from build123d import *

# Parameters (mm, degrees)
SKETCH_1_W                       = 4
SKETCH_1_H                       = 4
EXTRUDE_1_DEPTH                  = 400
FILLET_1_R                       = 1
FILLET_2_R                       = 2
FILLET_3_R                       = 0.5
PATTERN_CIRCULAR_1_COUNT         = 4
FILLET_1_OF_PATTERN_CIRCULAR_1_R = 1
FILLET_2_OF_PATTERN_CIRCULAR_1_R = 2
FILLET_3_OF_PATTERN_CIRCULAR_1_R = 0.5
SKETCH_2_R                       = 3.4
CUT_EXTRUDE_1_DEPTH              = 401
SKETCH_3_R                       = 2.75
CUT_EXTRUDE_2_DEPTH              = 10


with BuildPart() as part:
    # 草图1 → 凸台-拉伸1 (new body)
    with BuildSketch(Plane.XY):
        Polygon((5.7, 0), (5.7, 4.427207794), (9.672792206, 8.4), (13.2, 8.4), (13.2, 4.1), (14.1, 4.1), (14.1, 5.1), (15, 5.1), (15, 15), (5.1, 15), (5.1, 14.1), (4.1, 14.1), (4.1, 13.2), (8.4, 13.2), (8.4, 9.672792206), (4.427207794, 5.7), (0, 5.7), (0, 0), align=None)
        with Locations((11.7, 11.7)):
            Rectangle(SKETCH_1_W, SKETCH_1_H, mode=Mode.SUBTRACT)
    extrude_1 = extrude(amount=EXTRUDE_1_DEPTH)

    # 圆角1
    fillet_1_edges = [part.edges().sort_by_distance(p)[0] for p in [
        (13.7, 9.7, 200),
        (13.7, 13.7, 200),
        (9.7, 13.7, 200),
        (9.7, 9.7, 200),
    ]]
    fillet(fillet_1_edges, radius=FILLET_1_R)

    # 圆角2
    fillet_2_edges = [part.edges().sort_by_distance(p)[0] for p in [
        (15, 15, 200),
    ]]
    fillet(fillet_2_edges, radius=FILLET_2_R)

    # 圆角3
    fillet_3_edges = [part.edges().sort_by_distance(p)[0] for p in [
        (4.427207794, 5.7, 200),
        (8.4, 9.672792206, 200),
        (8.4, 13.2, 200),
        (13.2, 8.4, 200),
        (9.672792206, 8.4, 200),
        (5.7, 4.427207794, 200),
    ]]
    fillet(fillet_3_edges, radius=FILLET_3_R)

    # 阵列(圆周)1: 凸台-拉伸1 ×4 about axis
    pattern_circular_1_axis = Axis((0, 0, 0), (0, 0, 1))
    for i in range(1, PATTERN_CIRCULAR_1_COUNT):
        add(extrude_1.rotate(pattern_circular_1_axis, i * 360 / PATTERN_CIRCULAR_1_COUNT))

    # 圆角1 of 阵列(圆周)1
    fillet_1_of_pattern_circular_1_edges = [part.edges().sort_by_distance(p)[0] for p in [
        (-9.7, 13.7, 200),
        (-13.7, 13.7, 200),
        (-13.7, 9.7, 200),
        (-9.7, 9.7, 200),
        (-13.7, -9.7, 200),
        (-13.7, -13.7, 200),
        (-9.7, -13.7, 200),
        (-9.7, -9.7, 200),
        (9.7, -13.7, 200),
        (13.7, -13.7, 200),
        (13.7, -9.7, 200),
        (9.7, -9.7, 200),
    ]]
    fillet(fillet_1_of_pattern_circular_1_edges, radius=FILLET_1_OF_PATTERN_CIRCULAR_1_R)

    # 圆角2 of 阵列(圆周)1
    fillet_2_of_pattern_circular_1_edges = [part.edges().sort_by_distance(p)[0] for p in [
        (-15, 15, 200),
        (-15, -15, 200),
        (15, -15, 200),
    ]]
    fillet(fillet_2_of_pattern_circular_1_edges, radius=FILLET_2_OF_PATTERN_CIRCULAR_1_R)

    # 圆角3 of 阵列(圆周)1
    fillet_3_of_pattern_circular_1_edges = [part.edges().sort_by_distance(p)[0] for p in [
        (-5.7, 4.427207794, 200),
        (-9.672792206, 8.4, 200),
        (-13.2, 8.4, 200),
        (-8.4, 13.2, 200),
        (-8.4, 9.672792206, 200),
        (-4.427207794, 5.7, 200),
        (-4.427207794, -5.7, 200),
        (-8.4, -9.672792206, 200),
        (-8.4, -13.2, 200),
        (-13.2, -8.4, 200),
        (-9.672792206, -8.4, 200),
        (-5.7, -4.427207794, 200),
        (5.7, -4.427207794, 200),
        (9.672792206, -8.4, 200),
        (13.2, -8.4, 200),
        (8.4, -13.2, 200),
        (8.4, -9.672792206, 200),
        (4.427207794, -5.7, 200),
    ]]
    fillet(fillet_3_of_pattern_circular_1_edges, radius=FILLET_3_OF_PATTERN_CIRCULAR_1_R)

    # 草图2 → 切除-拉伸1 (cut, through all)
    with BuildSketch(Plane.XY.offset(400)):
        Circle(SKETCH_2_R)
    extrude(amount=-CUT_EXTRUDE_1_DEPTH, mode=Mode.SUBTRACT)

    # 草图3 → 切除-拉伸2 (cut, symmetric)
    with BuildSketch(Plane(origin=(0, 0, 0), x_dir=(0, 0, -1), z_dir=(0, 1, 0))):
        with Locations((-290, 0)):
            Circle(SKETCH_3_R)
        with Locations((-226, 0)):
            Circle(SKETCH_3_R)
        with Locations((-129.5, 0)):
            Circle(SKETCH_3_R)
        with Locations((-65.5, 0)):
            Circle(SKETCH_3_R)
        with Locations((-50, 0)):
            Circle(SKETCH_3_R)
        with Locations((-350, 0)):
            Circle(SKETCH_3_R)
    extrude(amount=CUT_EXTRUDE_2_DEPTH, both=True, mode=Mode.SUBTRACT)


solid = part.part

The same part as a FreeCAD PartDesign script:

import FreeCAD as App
import Part
import Sketcher

V = App.Vector
Q = App.Units.Quantity


def edges_at(feature, points):
    """Names of the edges that pass closest to the given points."""
    edges = feature.Shape.Edges
    near = lambda p: min(range(len(edges)), key=lambda i: edges[i].distToShape(Part.Vertex(*p))[0])
    return sorted({f"Edge{near(p) + 1}" for p in points})


def add_polygon(sketch, points):
    """Adds a closed chain of lines whose ends are joined by coincident constraints."""
    first, n = sketch.GeometryCount, len(points)
    for a, b in zip(points, points[1:] + points[:1]):
        sketch.addGeometry(Part.LineSegment(App.Vector(*a, 0), App.Vector(*b, 0)), False)
    for i in range(n):
        sketch.addConstraint(Sketcher.Constraint("Coincident", first + i, 2, first + (i + 1) % n, 1))

doc = App.newDocument("Part")
body = doc.addObject("PartDesign::Body", "Body")

# Sketch on XY plane
sketch1 = doc.addObject("Sketcher::SketchObject", "Sketch")
body.addObject(sketch1)
sketch1.AttachmentSupport = (doc.XY_Plane, [""])
sketch1.MapMode = "FlatFace"
add_polygon(sketch1, [(5.7, 0), (5.7, 4.427208), (9.672792, 8.4), (13.2, 8.4), (13.2, 4.1), (14.1, 4.1), (14.1, 5.1), (15, 5.1), (15, 15), (5.1, 15), (5.1, 14.1), (4.1, 14.1), (4.1, 13.2), (8.4, 13.2), (8.4, 9.672792), (4.427208, 5.7), (0, 5.7), (0, 0)])  # lines 0-17
add_polygon(sketch1, [(13.7, 9.7), (9.7, 9.7), (9.7, 13.7), (13.7, 13.7)])  # lines 18-21
sketch1.addConstraint([
    Sketcher.Constraint("Vertical", 0),
    Sketcher.Constraint("Horizontal", 2),
    Sketcher.Constraint("Vertical", 3),
    Sketcher.Constraint("Horizontal", 4),
    Sketcher.Constraint("Vertical", 5),
    Sketcher.Constraint("Horizontal", 6),
    Sketcher.Constraint("Vertical", 7),
    Sketcher.Constraint("Horizontal", 8),
    Sketcher.Constraint("Vertical", 9),
    Sketcher.Constraint("Horizontal", 10),
    Sketcher.Constraint("Vertical", 11),
    Sketcher.Constraint("Horizontal", 12),
    Sketcher.Constraint("Vertical", 13),
    Sketcher.Constraint("Horizontal", 15),
    Sketcher.Constraint("Vertical", 16),
    Sketcher.Constraint("Horizontal", 17),
    Sketcher.Constraint("Horizontal", 18),
    Sketcher.Constraint("Vertical", 19),
    Sketcher.Constraint("Horizontal", 20),
    Sketcher.Constraint("Vertical", 21),
    Sketcher.Constraint("Coincident", 16, 2, -1, 1),
    Sketcher.Constraint("Parallel", 1, 14),
    Sketcher.Constraint("Equal", 4, 6),
    Sketcher.Constraint("Equal", 15, 0),
    Sketcher.Constraint("Equal", 12, 3),
    Sketcher.Constraint("Equal", 10, 5),
    Sketcher.Constraint("Equal", 8, 7),
    Sketcher.Constraint("Equal", 6, 9),
    Sketcher.Constraint("Equal", 9, 11),
    Sketcher.Constraint("Equal", 2, 13),
    Sketcher.Constraint("Equal", 17, 16),
    Sketcher.Constraint("Equal", 20, 19),
    Sketcher.Constraint("DistanceX", 10, 2, 10, 1, Q("1 mm")),
    Sketcher.Constraint("DistanceX", 18, 2, 18, 1, Q("4 mm")),
    Sketcher.Constraint("Angle", 1, Q("45 deg")),
    Sketcher.Constraint("DistanceX", 4, 1, 4, 2, Q("0.9 mm")),
    Sketcher.Constraint("DistanceX", 8, 2, 8, 1, Q("9.9 mm")),
    Sketcher.Constraint("DistanceX", 12, 1, 12, 2, Q("4.3 mm")),
    Sketcher.Constraint("DistanceX", 17, 1, 17, 2, Q("5.7 mm")),
    Sketcher.Constraint("DistanceX", -1, 1, 6, 2, Q("15 mm")),
    Sketcher.Constraint("DistanceX", -1, 1, 18, 2, Q("9.7 mm")),
    Sketcher.Constraint("DistanceY", -1, 1, 18, 2, Q("9.7 mm")),
    Sketcher.Constraint("DistanceX", 2, 1, 2, 2, Q("3.527208 mm")),
])
pad1 = doc.addObject("PartDesign::Pad", "Pad")
body.addObject(pad1)
pad1.Profile = sketch1
pad1.Length = 400
doc.recompute()

fillet = doc.addObject("PartDesign::Fillet", "Fillet")
body.addObject(fillet)
fillet.Base = (pad1, edges_at(pad1, [
    (13.7, 9.7, 200),
    (13.7, 13.7, 200),
    (9.7, 13.7, 200),
    (9.7, 9.7, 200),
]))
fillet.Radius = 1
doc.recompute()

fillet2 = doc.addObject("PartDesign::Fillet", "Fillet001")
body.addObject(fillet2)
fillet2.Base = (fillet, edges_at(fillet, [(15, 15, 200)]))
fillet2.Radius = 2
doc.recompute()

fillet3 = doc.addObject("PartDesign::Fillet", "Fillet002")
body.addObject(fillet3)
fillet3.Base = (fillet2, edges_at(fillet2, [
    (4.427, 5.7, 200),
    (8.4, 9.673, 200),
    (8.4, 13.2, 200),
    (13.2, 8.4, 200),
    (9.673, 8.4, 200),
    (5.7, 4.427, 200),
]))
fillet3.Radius = 0.5
doc.recompute()

polarpattern = doc.addObject("PartDesign::PolarPattern", "PolarPattern")
body.addObject(polarpattern)
polarpattern.Originals = [pad1]
polarpattern.Axis = (doc.Z_Axis, [""])
polarpattern.Angle = 360
polarpattern.Occurrences = 4
body.Tip = polarpattern
doc.recompute()

fillet4 = doc.addObject("PartDesign::Fillet", "Fillet003")
body.addObject(fillet4)
fillet4.Base = (polarpattern, edges_at(polarpattern, [
    (-9.7, 13.7, 200),
    (-13.7, 13.7, 200),
    (-13.7, 9.7, 200),
    (-9.7, 9.7, 200),
    (-13.7, -9.7, 200),
    (-13.7, -13.7, 200),
    (-9.7, -13.7, 200),
    (-9.7, -9.7, 200),
    (9.7, -13.7, 200),
    (13.7, -13.7, 200),
    (13.7, -9.7, 200),
    (9.7, -9.7, 200),
]))
fillet4.Radius = 1
doc.recompute()

fillet5 = doc.addObject("PartDesign::Fillet", "Fillet004")
body.addObject(fillet5)
fillet5.Base = (fillet4, edges_at(fillet4, [(-15, 15, 200), (-15, -15, 200), (15, -15, 200)]))
fillet5.Radius = 2
doc.recompute()

fillet6 = doc.addObject("PartDesign::Fillet", "Fillet005")
body.addObject(fillet6)
fillet6.Base = (fillet5, edges_at(fillet5, [
    (-5.7, 4.427, 200),
    (-9.673, 8.4, 200),
    (-13.2, 8.4, 200),
    (-8.4, 13.2, 200),
    (-8.4, 9.673, 200),
    (-4.427, 5.7, 200),
    (-4.427, -5.7, 200),
    (-8.4, -9.673, 200),
    (-8.4, -13.2, 200),
    (-13.2, -8.4, 200),
    (-9.673, -8.4, 200),
    (-5.7, -4.427, 200),
    (5.7, -4.427, 200),
    (9.673, -8.4, 200),
    (13.2, -8.4, 200),
    (8.4, -13.2, 200),
    (8.4, -9.673, 200),
    (4.427, -5.7, 200),
]))
fillet6.Radius = 0.5

# Sketch on XY plane
sketch2 = doc.addObject("Sketcher::SketchObject", "Sketch001")
body.addObject(sketch2)
sketch2.AttachmentSupport = (doc.XY_Plane, [""])
sketch2.MapMode = "FlatFace"
sketch2.AttachmentOffset = App.Placement(V(0, 0, 400), App.Rotation())
sketch2.addGeometry(Part.Circle(V(0, 0, 0), V(0, 0, 1), 3.4), False)
sketch2.addConstraint([
    Sketcher.Constraint("Coincident", 0, 3, -1, 1),
    Sketcher.Constraint("Diameter", 0, Q("6.8 mm")),
])
pocket1 = doc.addObject("PartDesign::Pocket", "Pocket")
body.addObject(pocket1)
pocket1.Profile = sketch2
pocket1.Type = "ThroughAll"

# Sketch on XZ plane
sketch3 = doc.addObject("Sketcher::SketchObject", "Sketch002")
body.addObject(sketch3)
sketch3.AttachmentSupport = (doc.XZ_Plane, [""])
sketch3.MapMode = "FlatFace"
sketch3.addGeometry([
    Part.Circle(V(0, 290, 0), V(0, 0, 1), 2.75),  # 0
    Part.Circle(V(0, 226, 0), V(0, 0, 1), 2.75),  # 1
    Part.Circle(V(0, 129.5, 0), V(0, 0, 1), 2.75),  # 2
    Part.Circle(V(0, 65.5, 0), V(0, 0, 1), 2.75),  # 3
    Part.Circle(V(0, 50, 0), V(0, 0, 1), 2.75),  # 4
    Part.Circle(V(0, 350, 0), V(0, 0, 1), 2.75),  # 5
], False)
sketch3.addConstraint([
    Sketcher.Constraint("Equal", 0, 1),
    Sketcher.Constraint("Equal", 1, 2),
    Sketcher.Constraint("Equal", 2, 3),
    Sketcher.Constraint("Equal", 3, 4),
    Sketcher.Constraint("Equal", 4, 5),
    Sketcher.Constraint("PointOnObject", 0, 3, -2),
    Sketcher.Constraint("PointOnObject", 1, 3, -2),
    Sketcher.Constraint("PointOnObject", 2, 3, -2),
    Sketcher.Constraint("PointOnObject", 3, 3, -2),
    Sketcher.Constraint("PointOnObject", 4, 3, -2),
    Sketcher.Constraint("PointOnObject", 5, 3, -2),
    Sketcher.Constraint("Diameter", 0, Q("5.5 mm")),
    Sketcher.Constraint("DistanceY", -1, 1, 0, 3, Q("290 mm")),
    Sketcher.Constraint("DistanceY", -1, 1, 1, 3, Q("226 mm")),
    Sketcher.Constraint("DistanceY", -1, 1, 4, 3, Q("50 mm")),
    Sketcher.Constraint("DistanceY", -1, 1, 5, 3, Q("350 mm")),
    Sketcher.Constraint("DistanceY", 3, 3, 2, 3, Q("64 mm")),
    Sketcher.Constraint("DistanceY", -1, 1, 2, 3, Q("129.5 mm")),
])
pocket2 = doc.addObject("PartDesign::Pocket", "Pocket001")
body.addObject(pocket2)
pocket2.Profile = sketch3
pocket2.Length = 20
pocket2.Midplane = True

doc.recompute()
